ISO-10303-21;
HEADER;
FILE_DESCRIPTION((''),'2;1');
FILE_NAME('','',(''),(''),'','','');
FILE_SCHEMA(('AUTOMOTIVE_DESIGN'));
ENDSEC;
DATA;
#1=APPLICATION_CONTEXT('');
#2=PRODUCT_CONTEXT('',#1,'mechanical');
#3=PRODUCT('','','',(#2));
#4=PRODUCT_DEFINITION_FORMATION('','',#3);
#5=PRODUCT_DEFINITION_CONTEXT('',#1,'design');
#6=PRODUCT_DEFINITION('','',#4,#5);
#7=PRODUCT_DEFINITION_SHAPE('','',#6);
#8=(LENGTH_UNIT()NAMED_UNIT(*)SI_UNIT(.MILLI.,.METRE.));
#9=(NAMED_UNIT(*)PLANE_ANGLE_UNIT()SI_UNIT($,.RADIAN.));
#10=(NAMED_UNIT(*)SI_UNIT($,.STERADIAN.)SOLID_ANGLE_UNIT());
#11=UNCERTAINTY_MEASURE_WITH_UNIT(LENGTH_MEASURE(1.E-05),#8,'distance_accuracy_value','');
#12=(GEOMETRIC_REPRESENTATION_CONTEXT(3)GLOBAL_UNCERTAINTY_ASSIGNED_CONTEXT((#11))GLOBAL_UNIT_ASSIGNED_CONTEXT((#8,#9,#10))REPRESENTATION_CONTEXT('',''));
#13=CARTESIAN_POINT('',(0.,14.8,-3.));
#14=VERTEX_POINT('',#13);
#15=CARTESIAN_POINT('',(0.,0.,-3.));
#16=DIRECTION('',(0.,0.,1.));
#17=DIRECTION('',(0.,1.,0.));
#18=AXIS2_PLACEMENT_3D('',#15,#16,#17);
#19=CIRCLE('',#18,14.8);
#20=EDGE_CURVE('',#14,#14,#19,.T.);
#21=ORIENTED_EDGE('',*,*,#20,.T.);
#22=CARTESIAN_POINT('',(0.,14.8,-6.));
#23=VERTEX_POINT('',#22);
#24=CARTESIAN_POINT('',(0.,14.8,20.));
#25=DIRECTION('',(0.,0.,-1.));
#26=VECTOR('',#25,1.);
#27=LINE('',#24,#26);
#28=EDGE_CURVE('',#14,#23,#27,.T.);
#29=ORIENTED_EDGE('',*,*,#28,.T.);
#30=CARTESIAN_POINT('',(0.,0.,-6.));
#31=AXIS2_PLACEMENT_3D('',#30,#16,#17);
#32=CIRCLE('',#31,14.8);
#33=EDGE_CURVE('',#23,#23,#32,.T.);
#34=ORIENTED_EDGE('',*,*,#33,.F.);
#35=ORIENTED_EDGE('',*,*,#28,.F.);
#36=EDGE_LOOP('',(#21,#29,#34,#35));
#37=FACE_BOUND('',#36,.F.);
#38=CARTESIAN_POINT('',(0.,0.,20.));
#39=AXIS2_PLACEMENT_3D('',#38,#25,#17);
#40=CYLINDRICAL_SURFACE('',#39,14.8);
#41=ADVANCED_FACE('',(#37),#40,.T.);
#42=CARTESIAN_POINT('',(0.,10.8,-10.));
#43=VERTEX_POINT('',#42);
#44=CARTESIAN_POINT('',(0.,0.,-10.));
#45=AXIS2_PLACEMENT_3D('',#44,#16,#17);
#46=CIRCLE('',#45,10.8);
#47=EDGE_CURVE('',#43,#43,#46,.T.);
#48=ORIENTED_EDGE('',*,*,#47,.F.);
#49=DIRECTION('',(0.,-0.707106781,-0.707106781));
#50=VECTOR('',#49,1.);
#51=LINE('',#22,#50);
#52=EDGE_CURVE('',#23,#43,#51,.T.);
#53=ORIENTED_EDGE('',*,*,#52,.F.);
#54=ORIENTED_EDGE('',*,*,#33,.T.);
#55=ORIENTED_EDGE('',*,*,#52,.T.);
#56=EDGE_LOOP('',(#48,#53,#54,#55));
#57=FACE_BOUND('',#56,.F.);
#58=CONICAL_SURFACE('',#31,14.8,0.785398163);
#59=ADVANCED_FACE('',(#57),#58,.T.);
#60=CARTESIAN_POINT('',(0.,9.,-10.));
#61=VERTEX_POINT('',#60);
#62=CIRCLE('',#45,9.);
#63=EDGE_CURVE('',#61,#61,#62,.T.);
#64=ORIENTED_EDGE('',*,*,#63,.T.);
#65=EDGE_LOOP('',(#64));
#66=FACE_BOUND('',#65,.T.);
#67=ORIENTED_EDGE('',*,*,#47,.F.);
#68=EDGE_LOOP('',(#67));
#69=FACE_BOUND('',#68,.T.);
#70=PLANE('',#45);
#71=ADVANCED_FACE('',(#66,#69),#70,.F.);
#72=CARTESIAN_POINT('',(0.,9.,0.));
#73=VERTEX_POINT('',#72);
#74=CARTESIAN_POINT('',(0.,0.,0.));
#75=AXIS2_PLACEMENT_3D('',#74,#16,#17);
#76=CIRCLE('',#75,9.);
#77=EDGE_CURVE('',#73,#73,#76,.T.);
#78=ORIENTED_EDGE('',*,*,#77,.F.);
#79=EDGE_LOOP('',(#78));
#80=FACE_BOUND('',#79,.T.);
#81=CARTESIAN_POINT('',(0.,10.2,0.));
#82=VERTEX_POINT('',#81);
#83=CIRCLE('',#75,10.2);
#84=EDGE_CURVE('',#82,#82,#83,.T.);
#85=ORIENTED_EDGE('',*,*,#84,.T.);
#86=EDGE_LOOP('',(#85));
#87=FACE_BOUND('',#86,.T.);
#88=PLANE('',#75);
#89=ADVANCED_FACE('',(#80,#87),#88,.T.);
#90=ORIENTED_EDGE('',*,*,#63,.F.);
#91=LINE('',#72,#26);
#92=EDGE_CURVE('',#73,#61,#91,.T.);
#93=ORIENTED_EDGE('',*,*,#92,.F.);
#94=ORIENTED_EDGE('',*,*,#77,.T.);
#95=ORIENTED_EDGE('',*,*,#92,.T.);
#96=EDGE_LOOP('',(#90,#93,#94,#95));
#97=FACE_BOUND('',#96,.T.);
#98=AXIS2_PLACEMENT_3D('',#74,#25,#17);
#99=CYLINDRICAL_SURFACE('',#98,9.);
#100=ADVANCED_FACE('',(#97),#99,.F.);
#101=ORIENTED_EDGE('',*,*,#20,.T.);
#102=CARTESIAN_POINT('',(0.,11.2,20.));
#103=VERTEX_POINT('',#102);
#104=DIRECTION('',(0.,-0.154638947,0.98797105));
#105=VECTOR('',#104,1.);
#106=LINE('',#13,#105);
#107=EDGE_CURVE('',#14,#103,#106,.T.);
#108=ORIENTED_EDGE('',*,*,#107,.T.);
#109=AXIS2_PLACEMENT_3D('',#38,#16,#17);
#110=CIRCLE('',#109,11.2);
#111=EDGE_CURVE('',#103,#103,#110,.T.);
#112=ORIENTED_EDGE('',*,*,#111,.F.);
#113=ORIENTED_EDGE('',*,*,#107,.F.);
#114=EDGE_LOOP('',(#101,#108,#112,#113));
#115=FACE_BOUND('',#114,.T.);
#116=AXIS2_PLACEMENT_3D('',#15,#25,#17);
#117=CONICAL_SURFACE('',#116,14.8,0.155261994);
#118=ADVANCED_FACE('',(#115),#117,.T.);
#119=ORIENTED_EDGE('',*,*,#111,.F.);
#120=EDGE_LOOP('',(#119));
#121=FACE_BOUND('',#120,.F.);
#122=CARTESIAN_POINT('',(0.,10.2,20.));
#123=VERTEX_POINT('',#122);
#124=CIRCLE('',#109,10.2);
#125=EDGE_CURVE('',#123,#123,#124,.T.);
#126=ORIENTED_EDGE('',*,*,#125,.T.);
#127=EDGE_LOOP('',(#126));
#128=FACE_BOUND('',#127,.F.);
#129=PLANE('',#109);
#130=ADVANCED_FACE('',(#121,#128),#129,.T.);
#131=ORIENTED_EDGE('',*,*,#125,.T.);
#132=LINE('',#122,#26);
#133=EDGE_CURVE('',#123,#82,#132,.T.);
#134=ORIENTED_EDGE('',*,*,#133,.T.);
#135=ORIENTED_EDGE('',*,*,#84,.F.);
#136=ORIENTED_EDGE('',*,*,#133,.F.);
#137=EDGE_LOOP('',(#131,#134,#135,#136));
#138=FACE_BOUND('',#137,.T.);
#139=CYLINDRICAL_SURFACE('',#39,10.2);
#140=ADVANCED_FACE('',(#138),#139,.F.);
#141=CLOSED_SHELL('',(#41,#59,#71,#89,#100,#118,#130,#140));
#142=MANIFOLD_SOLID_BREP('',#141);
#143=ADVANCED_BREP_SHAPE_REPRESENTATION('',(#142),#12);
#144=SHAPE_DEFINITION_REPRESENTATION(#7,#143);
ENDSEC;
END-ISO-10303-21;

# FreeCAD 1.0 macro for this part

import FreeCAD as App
import Part
import Sketcher
from FreeCAD import Vector
Q = App.Units.Quantity


def edges_at(feature, points):
    """Names of the edges that pass closest to the given points."""
    edges = feature.Shape.Edges
    near = lambda p: min(range(len(edges)), key=lambda i: edges[i].distToShape(Part.Vertex(*p))[0])
    return sorted({f"Edge{near(p) + 1}" for p in points})


def add_polygon(sketch, points):
    """Adds a closed chain of lines whose ends are joined by coincident constraints."""
    first, n = sketch.GeometryCount, len(points)
    for a, b in zip(points, points[1:] + points[:1]):
        sketch.addGeometry(Part.LineSegment(App.Vector(*a, 0), App.Vector(*b, 0)), False)
    for i in range(n):
        sketch.addConstraint(Sketcher.Constraint("Coincident", first + i, 2, first + (i + 1) % n, 1))

doc = App.newDocument("Part")
body = doc.addObject("PartDesign::Body", "Body")

sketch1 = body.newObject("Sketcher::SketchObject", "Sketch")
sketch1.AttachmentSupport = (doc.getObject("YZ_Plane"), [""])
sketch1.MapMode = "FlatFace"
add_polygon(sketch1, [(14.8, 20), (10.2, 20), (10.2, 0), (9, 0), (9, -10), (14.8, -10)])
sketch1.addConstraint(Sketcher.Constraint("Horizontal", 0))
sketch1.addConstraint(Sketcher.Constraint("Vertical", 1))
sketch1.addConstraint(Sketcher.Constraint("Horizontal", 2))
sketch1.addConstraint(Sketcher.Constraint("Vertical", 3))
sketch1.addConstraint(Sketcher.Constraint("Horizontal", 4))
sketch1.addConstraint(Sketcher.Constraint("Vertical", 5))
sketch1.addConstraint(Sketcher.Constraint("PointOnObject", 1, 2, -1))
sketch1.addConstraint(Sketcher.Constraint("DistanceY", 1, 2, 1, 1, Q("20 mm")))
sketch1.addConstraint(Sketcher.Constraint("DistanceY", 3, 2, 3, 1, Q("10 mm")))
sketch1.addConstraint(Sketcher.Constraint("DistanceX", -1, 1, 2, 2, Q("9 mm")))
sketch1.addConstraint(Sketcher.Constraint("DistanceX", -1, 1, 0, 2, Q("10.2 mm")))
sketch1.addConstraint(Sketcher.Constraint("DistanceX", -1, 1, 4, 2, Q("14.8 mm")))
revolution = body.newObject("PartDesign::Revolution", "Revolution")
revolution.Profile = sketch1
revolution.ReferenceAxis = (sketch1, ["V_Axis"])
revolution.Angle = 360
doc.recompute()

chamfer = body.newObject("PartDesign::Chamfer", "Chamfer")
chamfer.Base = (revolution, edges_at(revolution, [(0, -14.8, 20)]))
chamfer.ChamferType = "Two distances"
chamfer.Size = 23
chamfer.Size2 = 3.6
chamfer.FlipDirection = True
doc.recompute()

chamfer2 = body.newObject("PartDesign::Chamfer", "Chamfer001")
chamfer2.Base = (chamfer, edges_at(chamfer, [(0, -14.8, -10)]))
chamfer2.Size = 4

doc.recompute()
